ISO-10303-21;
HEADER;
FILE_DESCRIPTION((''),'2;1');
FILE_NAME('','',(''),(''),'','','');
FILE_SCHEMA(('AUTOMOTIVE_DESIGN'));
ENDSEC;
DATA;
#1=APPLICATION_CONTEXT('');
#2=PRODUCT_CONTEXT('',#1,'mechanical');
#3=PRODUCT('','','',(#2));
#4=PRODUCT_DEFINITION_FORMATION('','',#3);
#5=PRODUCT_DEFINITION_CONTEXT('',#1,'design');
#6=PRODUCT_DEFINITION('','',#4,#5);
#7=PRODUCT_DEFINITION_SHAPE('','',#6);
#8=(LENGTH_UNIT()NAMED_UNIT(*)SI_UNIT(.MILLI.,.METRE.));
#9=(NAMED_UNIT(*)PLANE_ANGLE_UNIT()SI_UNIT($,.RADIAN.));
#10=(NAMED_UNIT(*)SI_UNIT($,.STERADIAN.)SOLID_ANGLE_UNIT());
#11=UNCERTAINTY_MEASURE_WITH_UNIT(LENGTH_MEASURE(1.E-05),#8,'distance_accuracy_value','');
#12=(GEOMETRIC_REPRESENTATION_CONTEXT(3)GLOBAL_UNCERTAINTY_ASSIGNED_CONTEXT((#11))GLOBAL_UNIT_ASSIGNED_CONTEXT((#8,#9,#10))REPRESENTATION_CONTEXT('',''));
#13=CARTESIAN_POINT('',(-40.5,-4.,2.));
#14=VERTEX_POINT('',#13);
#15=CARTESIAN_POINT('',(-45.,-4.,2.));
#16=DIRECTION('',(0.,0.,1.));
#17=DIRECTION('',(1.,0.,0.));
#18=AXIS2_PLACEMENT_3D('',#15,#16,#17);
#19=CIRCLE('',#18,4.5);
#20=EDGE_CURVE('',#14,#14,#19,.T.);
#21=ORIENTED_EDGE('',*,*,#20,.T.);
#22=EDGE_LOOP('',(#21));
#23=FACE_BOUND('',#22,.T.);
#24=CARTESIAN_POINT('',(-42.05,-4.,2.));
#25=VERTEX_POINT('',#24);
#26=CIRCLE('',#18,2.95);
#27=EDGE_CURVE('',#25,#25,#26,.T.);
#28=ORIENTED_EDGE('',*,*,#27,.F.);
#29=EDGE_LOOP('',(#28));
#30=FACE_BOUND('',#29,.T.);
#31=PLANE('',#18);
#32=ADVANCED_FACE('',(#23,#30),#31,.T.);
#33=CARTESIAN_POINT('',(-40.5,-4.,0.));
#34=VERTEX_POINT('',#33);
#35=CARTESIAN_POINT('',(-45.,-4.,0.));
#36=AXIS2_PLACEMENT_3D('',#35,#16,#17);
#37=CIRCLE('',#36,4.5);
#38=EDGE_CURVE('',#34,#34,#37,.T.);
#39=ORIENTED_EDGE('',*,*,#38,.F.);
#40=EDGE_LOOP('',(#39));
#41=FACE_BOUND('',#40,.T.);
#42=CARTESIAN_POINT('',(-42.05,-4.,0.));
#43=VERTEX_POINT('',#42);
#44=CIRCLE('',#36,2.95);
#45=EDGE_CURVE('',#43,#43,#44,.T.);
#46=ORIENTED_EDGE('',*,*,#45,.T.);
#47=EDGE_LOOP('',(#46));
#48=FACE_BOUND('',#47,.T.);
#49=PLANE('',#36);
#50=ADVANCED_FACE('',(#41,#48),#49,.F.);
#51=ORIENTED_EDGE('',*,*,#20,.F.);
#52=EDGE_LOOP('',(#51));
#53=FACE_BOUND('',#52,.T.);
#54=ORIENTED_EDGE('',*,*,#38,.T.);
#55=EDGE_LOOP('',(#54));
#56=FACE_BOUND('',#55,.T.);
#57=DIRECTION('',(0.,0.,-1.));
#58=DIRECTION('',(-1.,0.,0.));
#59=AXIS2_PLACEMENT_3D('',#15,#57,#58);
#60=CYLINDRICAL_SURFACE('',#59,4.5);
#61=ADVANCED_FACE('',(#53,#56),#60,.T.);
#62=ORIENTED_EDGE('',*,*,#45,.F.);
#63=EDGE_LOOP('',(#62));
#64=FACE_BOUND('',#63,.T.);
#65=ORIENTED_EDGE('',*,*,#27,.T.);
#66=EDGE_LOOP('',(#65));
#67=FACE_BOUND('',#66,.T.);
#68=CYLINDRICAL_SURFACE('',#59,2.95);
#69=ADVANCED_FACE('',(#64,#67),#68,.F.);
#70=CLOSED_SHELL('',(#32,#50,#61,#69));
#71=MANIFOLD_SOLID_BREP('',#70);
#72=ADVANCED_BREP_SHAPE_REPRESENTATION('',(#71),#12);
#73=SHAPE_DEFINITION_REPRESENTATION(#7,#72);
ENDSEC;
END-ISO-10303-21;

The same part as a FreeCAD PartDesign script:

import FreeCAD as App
import Part
import Sketcher
Q = App.Units.Quantity

doc = App.newDocument("Part")
body = doc.addObject("PartDesign::Body", "Body")

# Sketch on XY plane
sketch1 = body.newObject("Sketcher::SketchObject", "Sketch")
sketch1.AttachmentSupport = (doc.getObject("XY_Plane"), [""])
sketch1.MapMode = "FlatFace"
sketch1.addGeometry([
    Part.Circle(App.Vector(-45, -4, 0), App.Vector(0, 0, 1), 4.5),
    Part.Circle(App.Vector(-45, -4, 0), App.Vector(0, 0, 1), 3),
], False)
sketch1.addConstraint([
    Sketcher.Constraint("Coincident", 1, 3, 0, 3),
    Sketcher.Constraint("Diameter", 0, Q("9 mm")),
    Sketcher.Constraint("Diameter", 1, Q("5.9 mm")),
    Sketcher.Constraint("DistanceX", 0, 3, -1, 1, Q("45 mm")),
    Sketcher.Constraint("DistanceY", 0, 3, -1, 1, Q("4 mm")),
])
pad1 = body.newObject("PartDesign::Pad", "Pad")
pad1.Profile = sketch1
pad1.Length = 2

doc.recompute()
